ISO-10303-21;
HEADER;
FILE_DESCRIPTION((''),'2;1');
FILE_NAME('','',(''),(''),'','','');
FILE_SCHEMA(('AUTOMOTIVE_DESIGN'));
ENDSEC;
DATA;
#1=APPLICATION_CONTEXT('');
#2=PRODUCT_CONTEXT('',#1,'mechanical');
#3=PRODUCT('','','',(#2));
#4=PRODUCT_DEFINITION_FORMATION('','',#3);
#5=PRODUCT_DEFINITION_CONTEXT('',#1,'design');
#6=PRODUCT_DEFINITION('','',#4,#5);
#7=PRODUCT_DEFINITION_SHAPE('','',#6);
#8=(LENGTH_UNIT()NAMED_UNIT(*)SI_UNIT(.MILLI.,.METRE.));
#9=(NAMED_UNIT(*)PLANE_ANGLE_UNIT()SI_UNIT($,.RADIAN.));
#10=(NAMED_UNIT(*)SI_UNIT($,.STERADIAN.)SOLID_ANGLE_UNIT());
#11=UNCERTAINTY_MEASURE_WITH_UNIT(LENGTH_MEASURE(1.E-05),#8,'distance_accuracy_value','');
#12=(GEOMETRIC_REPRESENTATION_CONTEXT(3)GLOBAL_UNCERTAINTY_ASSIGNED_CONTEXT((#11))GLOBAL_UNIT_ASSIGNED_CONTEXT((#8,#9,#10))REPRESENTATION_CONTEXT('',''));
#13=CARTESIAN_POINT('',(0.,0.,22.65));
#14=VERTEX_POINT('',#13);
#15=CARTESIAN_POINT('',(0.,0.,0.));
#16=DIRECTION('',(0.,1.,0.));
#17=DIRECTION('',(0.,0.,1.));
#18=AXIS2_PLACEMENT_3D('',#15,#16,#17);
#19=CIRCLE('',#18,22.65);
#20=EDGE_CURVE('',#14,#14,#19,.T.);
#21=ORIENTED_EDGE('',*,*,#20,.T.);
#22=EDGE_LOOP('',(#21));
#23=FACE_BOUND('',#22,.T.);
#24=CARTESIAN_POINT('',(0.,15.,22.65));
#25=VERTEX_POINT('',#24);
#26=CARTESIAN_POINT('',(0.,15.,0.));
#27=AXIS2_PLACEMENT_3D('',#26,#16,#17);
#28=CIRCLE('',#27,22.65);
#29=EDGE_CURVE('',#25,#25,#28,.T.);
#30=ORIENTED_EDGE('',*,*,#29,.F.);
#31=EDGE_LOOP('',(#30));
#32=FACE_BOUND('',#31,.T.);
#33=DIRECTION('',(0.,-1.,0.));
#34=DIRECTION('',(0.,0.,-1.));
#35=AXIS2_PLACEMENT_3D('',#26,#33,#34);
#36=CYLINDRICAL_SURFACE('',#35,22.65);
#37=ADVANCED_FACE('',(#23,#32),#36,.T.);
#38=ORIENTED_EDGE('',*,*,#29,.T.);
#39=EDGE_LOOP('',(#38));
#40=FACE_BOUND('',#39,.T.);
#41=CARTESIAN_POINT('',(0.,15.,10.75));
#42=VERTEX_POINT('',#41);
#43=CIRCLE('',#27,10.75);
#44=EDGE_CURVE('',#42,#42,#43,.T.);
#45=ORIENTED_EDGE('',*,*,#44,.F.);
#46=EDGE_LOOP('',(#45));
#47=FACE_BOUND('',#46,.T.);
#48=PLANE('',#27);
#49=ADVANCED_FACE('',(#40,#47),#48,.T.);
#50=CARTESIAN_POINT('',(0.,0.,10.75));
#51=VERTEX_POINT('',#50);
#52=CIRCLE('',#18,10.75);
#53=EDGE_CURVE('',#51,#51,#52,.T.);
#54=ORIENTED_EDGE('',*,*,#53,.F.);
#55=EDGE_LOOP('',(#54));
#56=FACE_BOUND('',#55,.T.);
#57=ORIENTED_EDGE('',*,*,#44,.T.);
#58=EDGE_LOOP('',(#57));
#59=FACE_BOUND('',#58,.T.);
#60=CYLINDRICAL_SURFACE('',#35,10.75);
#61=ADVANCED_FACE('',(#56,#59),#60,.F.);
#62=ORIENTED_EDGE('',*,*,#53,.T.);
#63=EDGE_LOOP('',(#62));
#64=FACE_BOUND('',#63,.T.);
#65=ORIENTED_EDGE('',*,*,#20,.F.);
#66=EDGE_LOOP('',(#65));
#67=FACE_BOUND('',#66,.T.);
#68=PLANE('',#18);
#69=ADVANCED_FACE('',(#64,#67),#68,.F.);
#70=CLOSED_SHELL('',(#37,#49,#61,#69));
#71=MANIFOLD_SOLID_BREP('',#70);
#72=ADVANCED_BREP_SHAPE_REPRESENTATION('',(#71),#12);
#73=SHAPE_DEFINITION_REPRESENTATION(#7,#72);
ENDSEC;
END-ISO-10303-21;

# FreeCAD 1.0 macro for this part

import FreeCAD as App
import Part
import Sketcher

V = App.Vector
Q = App.Units.Quantity

doc = App.newDocument("Part")
body = doc.addObject("PartDesign::Body", "Body")

sketch1 = body.newObject("Sketcher::SketchObject", "Sketch")
sketch1.AttachmentSupport = (doc.getObject("XZ_Plane"), [""])
sketch1.MapMode = "FlatFace"
sketch1.addGeometry([
    Part.Circle(V(0, 0, 0), V(0, 0, 1), 23),
    Part.Circle(V(0, 0, 0), V(0, 0, 1), 11),
], False)
sketch1.addConstraint([
    Sketcher.Constraint("Coincident", 0, 3, -1, 1),
    Sketcher.Constraint("Coincident", 1, 3, -1, 1),
    Sketcher.Constraint("Diameter", 0, Q("45.3 mm")),
    Sketcher.Constraint("Diameter", 1, Q("21.5 mm")),
])
pad1 = body.newObject("PartDesign::Pad", "Pad")
pad1.Profile = sketch1
pad1.Length = 15
pad1.Reversed = True

doc.recompute()
